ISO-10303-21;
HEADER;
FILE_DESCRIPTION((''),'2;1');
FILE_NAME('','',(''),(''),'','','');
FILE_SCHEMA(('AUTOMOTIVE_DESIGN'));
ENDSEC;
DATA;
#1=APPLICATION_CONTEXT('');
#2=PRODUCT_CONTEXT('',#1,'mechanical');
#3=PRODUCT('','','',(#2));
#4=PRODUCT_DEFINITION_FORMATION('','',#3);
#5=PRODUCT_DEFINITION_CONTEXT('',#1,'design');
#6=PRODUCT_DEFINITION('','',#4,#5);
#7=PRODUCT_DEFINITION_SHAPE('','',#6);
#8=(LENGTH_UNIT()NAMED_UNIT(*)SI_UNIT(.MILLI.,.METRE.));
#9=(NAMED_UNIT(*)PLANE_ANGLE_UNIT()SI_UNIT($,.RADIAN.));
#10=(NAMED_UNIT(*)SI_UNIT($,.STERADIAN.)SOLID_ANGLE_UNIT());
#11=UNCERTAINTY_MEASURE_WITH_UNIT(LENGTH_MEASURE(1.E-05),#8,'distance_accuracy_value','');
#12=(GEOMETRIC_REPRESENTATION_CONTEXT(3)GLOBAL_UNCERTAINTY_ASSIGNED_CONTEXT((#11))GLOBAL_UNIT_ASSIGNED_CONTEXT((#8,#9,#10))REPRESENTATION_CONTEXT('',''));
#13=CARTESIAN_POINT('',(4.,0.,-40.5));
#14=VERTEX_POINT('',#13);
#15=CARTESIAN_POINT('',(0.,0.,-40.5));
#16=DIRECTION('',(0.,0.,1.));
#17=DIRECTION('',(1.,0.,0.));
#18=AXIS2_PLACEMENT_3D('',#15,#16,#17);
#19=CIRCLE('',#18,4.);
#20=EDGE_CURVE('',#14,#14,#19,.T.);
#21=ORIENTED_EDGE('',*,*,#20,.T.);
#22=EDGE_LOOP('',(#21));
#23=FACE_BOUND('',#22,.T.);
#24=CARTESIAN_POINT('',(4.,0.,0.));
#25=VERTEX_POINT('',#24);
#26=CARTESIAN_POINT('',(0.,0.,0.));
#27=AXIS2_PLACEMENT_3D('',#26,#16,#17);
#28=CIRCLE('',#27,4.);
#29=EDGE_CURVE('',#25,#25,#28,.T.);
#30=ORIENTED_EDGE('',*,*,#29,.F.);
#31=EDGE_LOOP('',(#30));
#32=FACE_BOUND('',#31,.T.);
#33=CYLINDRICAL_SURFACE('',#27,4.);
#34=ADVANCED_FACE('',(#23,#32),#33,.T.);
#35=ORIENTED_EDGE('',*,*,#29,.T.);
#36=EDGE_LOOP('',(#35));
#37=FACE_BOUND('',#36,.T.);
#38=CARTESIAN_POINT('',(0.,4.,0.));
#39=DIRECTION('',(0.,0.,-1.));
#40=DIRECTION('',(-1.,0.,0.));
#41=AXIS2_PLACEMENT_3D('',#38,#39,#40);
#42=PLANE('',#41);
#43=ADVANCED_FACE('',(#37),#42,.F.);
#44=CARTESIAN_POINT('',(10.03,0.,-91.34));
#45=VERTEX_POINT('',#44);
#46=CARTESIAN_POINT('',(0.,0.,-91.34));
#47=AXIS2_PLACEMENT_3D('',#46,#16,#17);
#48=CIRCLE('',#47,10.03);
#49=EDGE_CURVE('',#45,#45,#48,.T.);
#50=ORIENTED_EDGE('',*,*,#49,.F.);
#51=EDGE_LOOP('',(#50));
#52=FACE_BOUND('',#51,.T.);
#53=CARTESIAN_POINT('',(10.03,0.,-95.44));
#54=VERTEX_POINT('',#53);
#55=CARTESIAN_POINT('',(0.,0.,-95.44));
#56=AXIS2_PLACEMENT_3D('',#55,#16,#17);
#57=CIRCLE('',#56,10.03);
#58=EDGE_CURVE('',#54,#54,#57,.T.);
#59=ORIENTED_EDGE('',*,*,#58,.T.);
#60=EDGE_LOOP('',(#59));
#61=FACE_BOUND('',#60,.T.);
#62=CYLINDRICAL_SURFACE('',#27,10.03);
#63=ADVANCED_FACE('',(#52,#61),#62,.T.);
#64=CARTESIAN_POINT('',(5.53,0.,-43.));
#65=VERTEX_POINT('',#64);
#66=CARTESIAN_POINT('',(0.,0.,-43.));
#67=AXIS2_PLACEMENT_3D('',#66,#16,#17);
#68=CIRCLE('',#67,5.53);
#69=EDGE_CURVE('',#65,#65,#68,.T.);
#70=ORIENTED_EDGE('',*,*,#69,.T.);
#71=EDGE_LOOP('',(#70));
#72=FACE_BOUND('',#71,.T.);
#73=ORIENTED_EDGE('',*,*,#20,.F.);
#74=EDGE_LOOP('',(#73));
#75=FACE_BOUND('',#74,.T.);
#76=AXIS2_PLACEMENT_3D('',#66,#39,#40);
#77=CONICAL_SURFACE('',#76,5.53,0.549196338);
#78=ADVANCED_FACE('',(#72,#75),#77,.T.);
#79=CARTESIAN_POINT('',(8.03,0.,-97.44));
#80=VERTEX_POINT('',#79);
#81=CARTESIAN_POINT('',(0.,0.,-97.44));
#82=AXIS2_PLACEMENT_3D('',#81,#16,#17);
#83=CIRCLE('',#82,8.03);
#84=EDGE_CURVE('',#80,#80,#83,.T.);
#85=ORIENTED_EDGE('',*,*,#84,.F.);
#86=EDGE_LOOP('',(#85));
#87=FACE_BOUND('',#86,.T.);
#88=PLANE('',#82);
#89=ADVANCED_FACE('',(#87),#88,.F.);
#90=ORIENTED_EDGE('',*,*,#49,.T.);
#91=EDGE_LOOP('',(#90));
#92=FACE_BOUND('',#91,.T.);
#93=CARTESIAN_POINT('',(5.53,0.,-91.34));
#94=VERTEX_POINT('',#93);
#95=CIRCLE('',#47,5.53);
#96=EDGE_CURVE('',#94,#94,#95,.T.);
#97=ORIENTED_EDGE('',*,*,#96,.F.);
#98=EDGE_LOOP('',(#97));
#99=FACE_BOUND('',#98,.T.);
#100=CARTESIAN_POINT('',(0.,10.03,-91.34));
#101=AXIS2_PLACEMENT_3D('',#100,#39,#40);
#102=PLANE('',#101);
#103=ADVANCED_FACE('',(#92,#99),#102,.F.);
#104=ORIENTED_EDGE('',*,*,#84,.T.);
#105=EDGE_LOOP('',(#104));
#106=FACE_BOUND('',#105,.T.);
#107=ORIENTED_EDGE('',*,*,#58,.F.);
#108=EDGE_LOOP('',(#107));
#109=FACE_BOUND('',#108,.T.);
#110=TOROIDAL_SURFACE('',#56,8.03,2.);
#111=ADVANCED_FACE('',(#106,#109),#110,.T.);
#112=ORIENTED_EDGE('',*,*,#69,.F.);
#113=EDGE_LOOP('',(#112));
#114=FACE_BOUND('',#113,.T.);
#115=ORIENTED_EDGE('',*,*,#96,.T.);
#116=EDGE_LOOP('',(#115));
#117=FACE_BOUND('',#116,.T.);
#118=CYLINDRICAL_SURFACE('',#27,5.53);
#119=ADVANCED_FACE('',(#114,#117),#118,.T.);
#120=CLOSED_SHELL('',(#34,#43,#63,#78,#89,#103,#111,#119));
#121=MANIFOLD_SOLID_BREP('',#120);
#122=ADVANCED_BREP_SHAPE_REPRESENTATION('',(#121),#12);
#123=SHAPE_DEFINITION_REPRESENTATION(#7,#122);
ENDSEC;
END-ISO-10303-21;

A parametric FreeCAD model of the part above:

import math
import FreeCAD as App
import Part
import Sketcher
from FreeCAD import Vector

doc = App.newDocument("Part")
body = doc.addObject("PartDesign::Body", "Body")

# Sketch on YZ plane
sketch1 = body.newObject("Sketcher::SketchObject", "Sketch")
sketch1.AttachmentSupport = (doc.getObject("YZ_Plane"), [""])
sketch1.MapMode = "FlatFace"
sketch1.addGeometry([
    Part.LineSegment(Vector(0, -97.44, 0), Vector(8.03, -97.44, 0)),  # 0
    Part.ArcOfCircle(Part.Circle(Vector(8.03, -95.44, 0), Vector(0, 0, 1), 2), math.radians(-90), math.radians(0)),  # 1
    Part.LineSegment(Vector(10.03, -95.44, 0), Vector(10.03, -91.34, 0)),  # 2
    Part.LineSegment(Vector(10.03, -91.34, 0), Vector(5.53, -91.34, 0)),  # 3
    Part.LineSegment(Vector(5.53, -91.34, 0), Vector(5.53, -43, 0)),  # 4
    Part.LineSegment(Vector(5.53, -43, 0), Vector(4, -40.5, 0)),  # 5
    Part.LineSegment(Vector(4, -40.5, 0), Vector(4, 0, 0)),  # 6
    Part.LineSegment(Vector(4, 0, 0), Vector(0, 0, 0)),  # 7
    Part.LineSegment(Vector(0, 0, 0), Vector(0, -97.44, 0)),  # 8
], False)
sketch1.addConstraint([
    Sketcher.Constraint("Tangent", 0, 2, 1, 1),
    Sketcher.Constraint("Tangent", 1, 2, 2, 1),
    Sketcher.Constraint("Coincident", 2, 2, 3, 1),
    Sketcher.Constraint("Coincident", 3, 2, 4, 1),
    Sketcher.Constraint("Coincident", 4, 2, 5, 1),
    Sketcher.Constraint("Coincident", 5, 2, 6, 1),
    Sketcher.Constraint("Coincident", 6, 2, 7, 1),
    Sketcher.Constraint("Coincident", 7, 2, 8, 1),
    Sketcher.Constraint("Coincident", 8, 2, 0, 1),
    Sketcher.Constraint("Horizontal", 0),
    Sketcher.Constraint("Vertical", 2),
    Sketcher.Constraint("Horizontal", 3),
    Sketcher.Constraint("Vertical", 4),
    Sketcher.Constraint("Vertical", 6),
    Sketcher.Constraint("Horizontal", 7),
    Sketcher.Constraint("Vertical", 8),
    Sketcher.Constraint("Coincident", 7, 2, -1, 1),
    Sketcher.Constraint("Radius", 1, 2.0),
    Sketcher.Constraint("DistanceX", 7, 2, 7, 1, 4.0),
    Sketcher.Constraint("DistanceX", 3, 2, 3, 1, 4.5),
    Sketcher.Constraint("DistanceY", 2, 1, 2, 2, 4.1),
    Sketcher.Constraint("DistanceY", 6, 1, 6, 2, 40.5),
    Sketcher.Constraint("DistanceY", 4, 2, -1, 1, 43.0),
    Sketcher.Constraint("DistanceX", 0, 1, 0, 2, 8.03),
    Sketcher.Constraint("DistanceY", 4, 1, 4, 2, 48.34),
])
revolution = body.newObject("PartDesign::Revolution", "Revolution")
revolution.Profile = sketch1
revolution.ReferenceAxis = (sketch1, ["V_Axis"])
revolution.Angle = 360

doc.recompute()
